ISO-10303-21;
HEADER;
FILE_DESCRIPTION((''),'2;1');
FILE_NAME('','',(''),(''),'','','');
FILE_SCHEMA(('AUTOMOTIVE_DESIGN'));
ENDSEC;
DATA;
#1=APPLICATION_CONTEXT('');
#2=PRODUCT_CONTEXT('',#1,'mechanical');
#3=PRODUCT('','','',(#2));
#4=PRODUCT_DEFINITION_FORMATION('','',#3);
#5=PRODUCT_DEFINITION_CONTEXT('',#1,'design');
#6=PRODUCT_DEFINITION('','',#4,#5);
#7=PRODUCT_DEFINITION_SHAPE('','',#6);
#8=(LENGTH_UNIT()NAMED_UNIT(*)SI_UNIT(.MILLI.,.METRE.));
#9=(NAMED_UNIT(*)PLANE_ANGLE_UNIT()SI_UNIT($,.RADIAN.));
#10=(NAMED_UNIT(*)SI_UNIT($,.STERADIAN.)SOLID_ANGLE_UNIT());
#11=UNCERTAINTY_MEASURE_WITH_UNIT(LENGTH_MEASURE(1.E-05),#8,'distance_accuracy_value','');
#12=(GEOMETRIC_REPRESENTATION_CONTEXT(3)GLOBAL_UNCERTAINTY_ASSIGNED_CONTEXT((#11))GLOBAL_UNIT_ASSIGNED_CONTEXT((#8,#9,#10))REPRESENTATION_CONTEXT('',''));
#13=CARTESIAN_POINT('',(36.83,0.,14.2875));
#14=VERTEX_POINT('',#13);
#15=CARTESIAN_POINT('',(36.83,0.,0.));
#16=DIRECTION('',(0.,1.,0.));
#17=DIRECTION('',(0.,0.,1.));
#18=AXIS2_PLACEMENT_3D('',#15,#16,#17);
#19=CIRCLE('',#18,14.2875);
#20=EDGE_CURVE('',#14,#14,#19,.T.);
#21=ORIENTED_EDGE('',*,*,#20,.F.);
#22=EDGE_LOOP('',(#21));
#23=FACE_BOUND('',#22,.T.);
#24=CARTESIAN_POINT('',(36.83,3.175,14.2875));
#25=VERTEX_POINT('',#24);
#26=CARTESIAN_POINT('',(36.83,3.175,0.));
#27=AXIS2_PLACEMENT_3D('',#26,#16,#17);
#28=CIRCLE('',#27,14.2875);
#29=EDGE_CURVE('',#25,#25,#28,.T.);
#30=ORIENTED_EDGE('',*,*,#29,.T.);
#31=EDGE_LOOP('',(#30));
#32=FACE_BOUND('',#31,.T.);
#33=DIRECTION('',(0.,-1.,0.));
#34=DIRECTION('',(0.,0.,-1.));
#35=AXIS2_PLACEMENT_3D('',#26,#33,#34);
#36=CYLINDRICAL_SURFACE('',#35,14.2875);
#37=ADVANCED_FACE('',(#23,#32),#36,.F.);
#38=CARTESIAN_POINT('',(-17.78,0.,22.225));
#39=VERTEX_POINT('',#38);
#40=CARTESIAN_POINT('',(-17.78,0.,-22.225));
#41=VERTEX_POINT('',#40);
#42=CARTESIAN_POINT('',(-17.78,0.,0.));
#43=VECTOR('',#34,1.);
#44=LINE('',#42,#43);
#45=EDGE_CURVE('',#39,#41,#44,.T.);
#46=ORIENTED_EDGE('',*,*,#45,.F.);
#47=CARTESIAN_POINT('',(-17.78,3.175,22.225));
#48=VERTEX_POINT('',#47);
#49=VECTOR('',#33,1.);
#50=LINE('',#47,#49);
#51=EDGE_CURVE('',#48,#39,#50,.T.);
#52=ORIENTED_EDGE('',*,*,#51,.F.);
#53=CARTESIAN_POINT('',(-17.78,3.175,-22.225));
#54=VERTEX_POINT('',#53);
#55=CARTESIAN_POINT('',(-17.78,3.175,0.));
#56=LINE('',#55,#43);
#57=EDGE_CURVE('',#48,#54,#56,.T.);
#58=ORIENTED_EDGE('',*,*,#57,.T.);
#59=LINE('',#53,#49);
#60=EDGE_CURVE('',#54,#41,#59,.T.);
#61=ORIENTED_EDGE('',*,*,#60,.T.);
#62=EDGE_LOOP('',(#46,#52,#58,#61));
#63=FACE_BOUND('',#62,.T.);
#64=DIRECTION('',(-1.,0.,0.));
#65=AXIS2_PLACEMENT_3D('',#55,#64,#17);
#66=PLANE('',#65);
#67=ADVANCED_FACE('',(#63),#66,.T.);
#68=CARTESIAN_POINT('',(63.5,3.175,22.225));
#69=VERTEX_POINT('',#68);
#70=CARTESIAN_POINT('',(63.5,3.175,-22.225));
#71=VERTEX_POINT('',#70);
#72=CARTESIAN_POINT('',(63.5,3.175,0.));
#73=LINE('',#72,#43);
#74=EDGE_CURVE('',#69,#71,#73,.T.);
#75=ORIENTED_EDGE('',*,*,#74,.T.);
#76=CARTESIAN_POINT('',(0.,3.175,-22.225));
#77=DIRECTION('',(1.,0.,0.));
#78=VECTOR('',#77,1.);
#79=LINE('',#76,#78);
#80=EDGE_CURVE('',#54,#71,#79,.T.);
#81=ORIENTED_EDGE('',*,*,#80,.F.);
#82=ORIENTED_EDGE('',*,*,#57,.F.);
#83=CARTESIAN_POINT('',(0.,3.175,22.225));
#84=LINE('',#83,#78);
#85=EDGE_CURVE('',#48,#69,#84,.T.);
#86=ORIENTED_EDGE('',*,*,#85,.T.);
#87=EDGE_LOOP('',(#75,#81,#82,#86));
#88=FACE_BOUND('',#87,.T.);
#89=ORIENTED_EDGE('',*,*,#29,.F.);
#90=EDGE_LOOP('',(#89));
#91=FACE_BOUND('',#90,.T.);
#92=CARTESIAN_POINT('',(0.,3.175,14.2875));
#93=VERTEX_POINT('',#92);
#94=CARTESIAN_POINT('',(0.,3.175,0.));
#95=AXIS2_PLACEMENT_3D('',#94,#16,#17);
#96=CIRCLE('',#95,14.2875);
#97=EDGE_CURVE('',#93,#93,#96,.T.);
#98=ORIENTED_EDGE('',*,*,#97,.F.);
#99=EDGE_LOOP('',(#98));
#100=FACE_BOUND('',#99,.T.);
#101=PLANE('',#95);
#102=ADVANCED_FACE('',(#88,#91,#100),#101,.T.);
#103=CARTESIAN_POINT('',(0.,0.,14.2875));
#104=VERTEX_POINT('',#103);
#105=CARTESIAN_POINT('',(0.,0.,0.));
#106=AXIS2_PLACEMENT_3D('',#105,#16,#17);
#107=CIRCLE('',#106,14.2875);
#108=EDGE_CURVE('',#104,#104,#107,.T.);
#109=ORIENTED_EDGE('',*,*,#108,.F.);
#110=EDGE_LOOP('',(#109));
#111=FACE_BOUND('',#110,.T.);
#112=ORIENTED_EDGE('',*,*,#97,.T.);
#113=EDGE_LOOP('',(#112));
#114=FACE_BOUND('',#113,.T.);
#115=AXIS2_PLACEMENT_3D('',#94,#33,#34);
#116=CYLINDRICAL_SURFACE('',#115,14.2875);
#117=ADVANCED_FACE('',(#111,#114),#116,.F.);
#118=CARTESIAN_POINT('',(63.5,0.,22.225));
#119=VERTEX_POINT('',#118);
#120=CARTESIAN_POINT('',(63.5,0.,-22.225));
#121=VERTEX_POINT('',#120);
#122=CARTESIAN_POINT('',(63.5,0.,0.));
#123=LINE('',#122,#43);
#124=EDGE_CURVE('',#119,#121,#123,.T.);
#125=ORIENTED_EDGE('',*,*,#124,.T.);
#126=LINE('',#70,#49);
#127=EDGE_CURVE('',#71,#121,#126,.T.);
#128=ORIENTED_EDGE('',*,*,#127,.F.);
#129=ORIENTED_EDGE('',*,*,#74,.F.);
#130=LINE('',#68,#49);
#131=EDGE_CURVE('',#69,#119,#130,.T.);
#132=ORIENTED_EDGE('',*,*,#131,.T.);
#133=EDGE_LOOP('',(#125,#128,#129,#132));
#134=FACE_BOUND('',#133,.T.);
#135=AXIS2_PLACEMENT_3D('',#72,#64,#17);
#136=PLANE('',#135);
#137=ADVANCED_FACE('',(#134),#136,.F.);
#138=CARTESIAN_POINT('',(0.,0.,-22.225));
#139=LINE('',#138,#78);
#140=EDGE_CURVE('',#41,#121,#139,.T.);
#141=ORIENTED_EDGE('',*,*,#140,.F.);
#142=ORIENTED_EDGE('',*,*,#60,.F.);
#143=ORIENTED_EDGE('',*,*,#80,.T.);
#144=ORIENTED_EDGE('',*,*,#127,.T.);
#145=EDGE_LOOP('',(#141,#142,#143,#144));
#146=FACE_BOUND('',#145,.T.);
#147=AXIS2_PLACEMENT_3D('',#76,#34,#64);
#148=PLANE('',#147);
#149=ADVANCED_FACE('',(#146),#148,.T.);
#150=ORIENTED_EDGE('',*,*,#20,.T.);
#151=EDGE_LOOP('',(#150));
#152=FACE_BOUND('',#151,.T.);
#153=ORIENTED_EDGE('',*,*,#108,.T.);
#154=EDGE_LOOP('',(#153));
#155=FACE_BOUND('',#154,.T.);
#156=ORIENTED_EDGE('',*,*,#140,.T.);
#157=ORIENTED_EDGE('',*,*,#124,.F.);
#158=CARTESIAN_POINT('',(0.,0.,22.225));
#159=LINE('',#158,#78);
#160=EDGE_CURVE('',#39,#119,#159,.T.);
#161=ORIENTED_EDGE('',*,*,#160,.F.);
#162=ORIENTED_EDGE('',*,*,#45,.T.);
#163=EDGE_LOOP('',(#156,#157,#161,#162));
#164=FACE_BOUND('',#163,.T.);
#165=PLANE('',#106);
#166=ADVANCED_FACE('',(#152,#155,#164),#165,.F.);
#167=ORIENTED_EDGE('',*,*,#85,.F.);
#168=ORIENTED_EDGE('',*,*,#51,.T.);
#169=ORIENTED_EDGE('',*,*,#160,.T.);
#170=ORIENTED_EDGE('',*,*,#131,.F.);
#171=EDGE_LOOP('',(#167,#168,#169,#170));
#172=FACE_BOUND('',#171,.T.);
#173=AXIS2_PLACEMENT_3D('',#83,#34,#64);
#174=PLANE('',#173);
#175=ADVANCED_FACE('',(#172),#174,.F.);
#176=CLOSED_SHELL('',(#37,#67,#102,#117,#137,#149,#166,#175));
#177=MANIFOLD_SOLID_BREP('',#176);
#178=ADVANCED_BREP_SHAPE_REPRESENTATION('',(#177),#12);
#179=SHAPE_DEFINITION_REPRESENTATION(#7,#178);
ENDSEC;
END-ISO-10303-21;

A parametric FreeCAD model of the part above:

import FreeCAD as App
import Part
import Sketcher

V = App.Vector
Q = App.Units.Quantity


def add_polygon(sketch, points):
    """Adds a closed chain of lines whose ends are joined by coincident constraints."""
    first, n = sketch.GeometryCount, len(points)
    for a, b in zip(points, points[1:] + points[:1]):
        sketch.addGeometry(Part.LineSegment(App.Vector(*a, 0), App.Vector(*b, 0)), False)
    for i in range(n):
        sketch.addConstraint(Sketcher.Constraint("Coincident", first + i, 2, first + (i + 1) % n, 1))

doc = App.newDocument("Part")
body = doc.addObject("PartDesign::Body", "Body")

sketch1 = body.newObject("Sketcher::SketchObject", "Sketch")
sketch1.AttachmentSupport = (doc.getObject("XZ_Plane"), [""])
sketch1.MapMode = "FlatFace"
add_polygon(sketch1, [(-18, -22), (-18, 22), (64, 22), (64, -22)])
sketch1.addGeometry(Part.Circle(V(0, 0, 0), V(0, 0, 1), 14), False)
sketch1.addGeometry(Part.Circle(V(37, 0, 0), V(0, 0, 1), 14), False)
sketch1.addConstraint([
    Sketcher.Constraint("Vertical", 0),
    Sketcher.Constraint("Horizontal", 1),
    Sketcher.Constraint("Vertical", 2),
    Sketcher.Constraint("Horizontal", 3),
    Sketcher.Constraint("Coincident", 4, 3, -1, 1),
    Sketcher.Constraint("Equal", 4, 5),
    Sketcher.Constraint("PointOnObject", 5, 3, -1),
    Sketcher.Constraint("Diameter", 4, Q("1.125 in")),
    Sketcher.Constraint("DistanceX", 1, 1, 1, 2, Q("3.2 in")),
    Sketcher.Constraint("DistanceY", 0, 1, 0, 2, Q("1.75 in")),
    Sketcher.Constraint("DistanceX", 0, 2, -1, 1, Q("0.7 in")),
    Sketcher.Constraint("DistanceX", -1, 1, 5, 3, Q("1.45 in")),
    Sketcher.Constraint("DistanceY", -1, 1, 0, 2, Q("0.875 in")),
])
pad1 = body.newObject("PartDesign::Pad", "Pad")
pad1.Profile = sketch1
pad1.Length = Q("0.125 in")
pad1.Reversed = True

doc.recompute()
